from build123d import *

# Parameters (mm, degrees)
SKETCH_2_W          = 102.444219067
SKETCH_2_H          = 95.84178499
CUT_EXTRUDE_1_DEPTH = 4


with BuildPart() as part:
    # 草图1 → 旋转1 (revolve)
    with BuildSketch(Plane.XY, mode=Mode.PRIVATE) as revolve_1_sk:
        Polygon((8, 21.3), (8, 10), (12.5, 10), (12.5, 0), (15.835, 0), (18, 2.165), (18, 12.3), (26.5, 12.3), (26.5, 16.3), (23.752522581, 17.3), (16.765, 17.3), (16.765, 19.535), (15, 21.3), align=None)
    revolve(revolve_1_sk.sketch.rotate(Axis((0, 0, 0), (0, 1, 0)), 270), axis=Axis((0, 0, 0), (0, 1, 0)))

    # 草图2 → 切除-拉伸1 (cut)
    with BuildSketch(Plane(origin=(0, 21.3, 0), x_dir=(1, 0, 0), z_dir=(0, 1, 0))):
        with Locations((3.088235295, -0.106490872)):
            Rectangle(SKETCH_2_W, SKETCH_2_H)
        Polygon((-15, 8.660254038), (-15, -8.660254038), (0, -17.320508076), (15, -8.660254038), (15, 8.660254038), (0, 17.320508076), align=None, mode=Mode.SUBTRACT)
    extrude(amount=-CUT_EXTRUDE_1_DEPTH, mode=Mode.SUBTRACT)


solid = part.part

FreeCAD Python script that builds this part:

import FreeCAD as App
import Part
import Sketcher
from FreeCAD import Vector
Q = App.Units.Quantity

doc = App.newDocument("Part")
body = doc.addObject("PartDesign::Body", "Body")

# Sketch on XY plane
sketch1 = body.newObject("Sketcher::SketchObject", "Sketch")
sketch1.AttachmentSupport = (doc.getObject("XY_Plane"), [""])
sketch1.MapMode = "FlatFace"
sketch1.addGeometry(Part.LineSegment(Vector(8, 21.3, 0), Vector(8, 10, 0)), False)
sketch1.addGeometry(Part.LineSegment(Vector(8, 10, 0), Vector(12.5, 10, 0)), False)
sketch1.addGeometry(Part.LineSegment(Vector(12.5, 10, 0), Vector(12.5, 0, 0)), False)
sketch1.addGeometry(Part.LineSegment(Vector(12.5, 0, 0), Vector(15.835, 0, 0)), False)
sketch1.addGeometry(Part.LineSegment(Vector(15.835, 0, 0), Vector(18, 2.165, 0)), False)
sketch1.addGeometry(Part.LineSegment(Vector(18, 2.165, 0), Vector(18, 12.3, 0)), False)
sketch1.addGeometry(Part.LineSegment(Vector(18, 12.3, 0), Vector(26.5, 12.3, 0)), False)
sketch1.addGeometry(Part.LineSegment(Vector(26.5, 12.3, 0), Vector(26.5, 16.3, 0)), False)
sketch1.addGeometry(Part.LineSegment(Vector(26.5, 16.3, 0), Vector(23.752523, 17.3, 0)), False)
sketch1.addGeometry(Part.LineSegment(Vector(23.752523, 17.3, 0), Vector(16.765, 17.3, 0)), False)
sketch1.addGeometry(Part.LineSegment(Vector(16.765, 17.3, 0), Vector(16.765, 19.535, 0)), False)
sketch1.addGeometry(Part.LineSegment(Vector(16.765, 19.535, 0), Vector(15, 21.3, 0)), False)
sketch1.addGeometry(Part.LineSegment(Vector(15, 21.3, 0), Vector(8, 21.3, 0)), False)
sketch1.addConstraint(Sketcher.Constraint("Coincident", 0, 2, 1, 1))
sketch1.addConstraint(Sketcher.Constraint("Coincident", 1, 2, 2, 1))
sketch1.addConstraint(Sketcher.Constraint("Coincident", 2, 2, 3, 1))
sketch1.addConstraint(Sketcher.Constraint("Coincident", 3, 2, 4, 1))
sketch1.addConstraint(Sketcher.Constraint("Coincident", 4, 2, 5, 1))
sketch1.addConstraint(Sketcher.Constraint("Coincident", 5, 2, 6, 1))
sketch1.addConstraint(Sketcher.Constraint("Coincident", 6, 2, 7, 1))
sketch1.addConstraint(Sketcher.Constraint("Coincident", 7, 2, 8, 1))
sketch1.addConstraint(Sketcher.Constraint("Coincident", 8, 2, 9, 1))
sketch1.addConstraint(Sketcher.Constraint("Coincident", 9, 2, 10, 1))
sketch1.addConstraint(Sketcher.Constraint("Coincident", 10, 2, 11, 1))
sketch1.addConstraint(Sketcher.Constraint("Coincident", 11, 2, 12, 1))
sketch1.addConstraint(Sketcher.Constraint("Coincident", 12, 2, 0, 1))
sketch1.addConstraint(Sketcher.Constraint("Vertical", 0))
sketch1.addConstraint(Sketcher.Constraint("Horizontal", 1))
sketch1.addConstraint(Sketcher.Constraint("Vertical", 2))
sketch1.addConstraint(Sketcher.Constraint("Horizontal", 3))
sketch1.addConstraint(Sketcher.Constraint("Vertical", 5))
sketch1.addConstraint(Sketcher.Constraint("Horizontal", 6))
sketch1.addConstraint(Sketcher.Constraint("Vertical", 7))
sketch1.addConstraint(Sketcher.Constraint("Horizontal", 9))
sketch1.addConstraint(Sketcher.Constraint("Vertical", 10))
sketch1.addConstraint(Sketcher.Constraint("Horizontal", 12))
sketch1.addConstraint(Sketcher.Constraint("PointOnObject", 2, 2, -1))
sketch1.addConstraint(Sketcher.Constraint("Perpendicular", 4, 11))
sketch1.addConstraint(Sketcher.Constraint("DistanceX", 12, 2, 12, 1, Q("7 mm")))
sketch1.addConstraint(Sketcher.Constraint("DistanceY", 2, 2, 2, 1, Q("10 mm")))
sketch1.addConstraint(Sketcher.Constraint("DistanceY", 7, 1, 7, 2, Q("4 mm")))
sketch1.addConstraint(Sketcher.Constraint("Angle", 4, Q("45 deg")))
sketch1.addConstraint(Sketcher.Constraint("Angle", 8, Q("160 deg")))
sketch1.addConstraint(Sketcher.Constraint("DistanceX", 1, 1, 1, 2, Q("4.5 mm")))
sketch1.addConstraint(Sketcher.Constraint("DistanceX", 6, 1, 6, 2, Q("8.5 mm")))
sketch1.addConstraint(Sketcher.Constraint("DistanceY", 0, 2, 0, 1, Q("11.3 mm")))
sketch1.addConstraint(Sketcher.Constraint("DistanceX", -1, 1, 0, 2, Q("8 mm")))
sketch1.addConstraint(Sketcher.Constraint("DistanceX", -1, 1, 4, 2, Q("18 mm")))
sketch1.addConstraint(Sketcher.Constraint("DistanceY", 7, 2, 8, 2, Q("1 mm")))
sketch1.addConstraint(Sketcher.Constraint("DistanceY", 9, 2, 11, 2, Q("4 mm")))
sketch1.addConstraint(Sketcher.Constraint("DistanceX", 3, 1, 3, 2, Q("3.335 mm")))
sketch1.addConstraint(Sketcher.Constraint("DistanceY", 10, 1, 10, 2, Q("2.235 mm")))
revolution = body.newObject("PartDesign::Revolution", "Revolution")
revolution.Profile = sketch1
revolution.ReferenceAxis = (sketch1, ["V_Axis"])
revolution.Angle = 360

# Sketch on XZ plane
sketch2 = body.newObject("Sketcher::SketchObject", "Sketch001")
sketch2.AttachmentSupport = (doc.getObject("XZ_Plane"), [""])
sketch2.MapMode = "FlatFace"
sketch2.AttachmentOffset = App.Placement(Vector(0, 0, -21.3), App.Rotation())
sketch2.addGeometry(Part.LineSegment(Vector(-48.133874, -47.814402, 0), Vector(-48.133874, 48.027383, 0)), False)
sketch2.addGeometry(Part.LineSegment(Vector(-48.133874, 48.027383, 0), Vector(54.310345, 48.027383, 0)), False)
sketch2.addGeometry(Part.LineSegment(Vector(54.310345, 48.027383, 0), Vector(54.310345, -47.814402, 0)), False)
sketch2.addGeometry(Part.LineSegment(Vector(54.310345, -47.814402, 0), Vector(-48.133874, -47.814402, 0)), False)
sketch2.addGeometry(Part.LineSegment(Vector(-15, 8.660254, 0), Vector(-15, -8.660254, 0)), False)
sketch2.addGeometry(Part.LineSegment(Vector(-15, -8.660254, 0), Vector(0, -17.320508, 0)), False)
sketch2.addGeometry(Part.LineSegment(Vector(0, -17.320508, 0), Vector(15, -8.660254, 0)), False)
sketch2.addGeometry(Part.LineSegment(Vector(15, -8.660254, 0), Vector(15, 8.660254, 0)), False)
sketch2.addGeometry(Part.LineSegment(Vector(15, 8.660254, 0), Vector(0, 17.320508, 0)), False)
sketch2.addGeometry(Part.LineSegment(Vector(0, 17.320508, 0), Vector(-15, 8.660254, 0)), False)
sketch2.addConstraint(Sketcher.Constraint("Coincident", 0, 2, 1, 1))
sketch2.addConstraint(Sketcher.Constraint("Coincident", 1, 2, 2, 1))
sketch2.addConstraint(Sketcher.Constraint("Coincident", 2, 2, 3, 1))
sketch2.addConstraint(Sketcher.Constraint("Coincident", 3, 2, 0, 1))
sketch2.addConstraint(Sketcher.Constraint("Coincident", 4, 2, 5, 1))
sketch2.addConstraint(Sketcher.Constraint("Coincident", 5, 2, 6, 1))
sketch2.addConstraint(Sketcher.Constraint("Coincident", 6, 2, 7, 1))
sketch2.addConstraint(Sketcher.Constraint("Coincident", 7, 2, 8, 1))
sketch2.addConstraint(Sketcher.Constraint("Coincident", 8, 2, 9, 1))
sketch2.addConstraint(Sketcher.Constraint("Coincident", 9, 2, 4, 1))
sketch2.addConstraint(Sketcher.Constraint("Vertical", 0))
sketch2.addConstraint(Sketcher.Constraint("Horizontal", 1))
sketch2.addConstraint(Sketcher.Constraint("Vertical", 2))
sketch2.addConstraint(Sketcher.Constraint("Horizontal", 3))
sketch2.addConstraint(Sketcher.Constraint("Vertical", 4))
sketch2.addConstraint(Sketcher.Constraint("Vertical", 7))
sketch2.addConstraint(Sketcher.Constraint("Symmetric", 4, 2, 7, 2, -1, 1))
sketch2.addConstraint(Sketcher.Constraint("Symmetric", 5, 2, 8, 2, -1, 1))
sketch2.addConstraint(Sketcher.Constraint("PointOnObject", 5, 2, -2))
sketch2.addConstraint(Sketcher.Constraint("Parallel", 6, 9))
sketch2.addConstraint(Sketcher.Constraint("Horizontal", 4, 2, 6, 2))
sketch2.addConstraint(Sketcher.Constraint("Angle", 5, Q("-30 deg")))
sketch2.addConstraint(Sketcher.Constraint("DistanceX", 4, 2, -1, 1, Q("15 mm")))
sketch2.addConstraint(Sketcher.Constraint("DistanceX", 1, 1, 1, 2, Q("102.444219 mm")))
sketch2.addConstraint(Sketcher.Constraint("DistanceY", 4, 2, 4, 1, Q("17.320508 mm")))
sketch2.addConstraint(Sketcher.Constraint("DistanceY", 2, 2, -1, 1, Q("47.814402 mm")))
sketch2.addConstraint(Sketcher.Constraint("DistanceY", 0, 1, 0, 2, Q("95.841785 mm")))
sketch2.addConstraint(Sketcher.Constraint("DistanceX", 0, 2, -1, 1, Q("48.133874 mm")))
pocket1 = body.newObject("PartDesign::Pocket", "Pocket")
pocket1.Profile = sketch2
pocket1.Length = 4
pocket1.Reversed = True

doc.recompute()
